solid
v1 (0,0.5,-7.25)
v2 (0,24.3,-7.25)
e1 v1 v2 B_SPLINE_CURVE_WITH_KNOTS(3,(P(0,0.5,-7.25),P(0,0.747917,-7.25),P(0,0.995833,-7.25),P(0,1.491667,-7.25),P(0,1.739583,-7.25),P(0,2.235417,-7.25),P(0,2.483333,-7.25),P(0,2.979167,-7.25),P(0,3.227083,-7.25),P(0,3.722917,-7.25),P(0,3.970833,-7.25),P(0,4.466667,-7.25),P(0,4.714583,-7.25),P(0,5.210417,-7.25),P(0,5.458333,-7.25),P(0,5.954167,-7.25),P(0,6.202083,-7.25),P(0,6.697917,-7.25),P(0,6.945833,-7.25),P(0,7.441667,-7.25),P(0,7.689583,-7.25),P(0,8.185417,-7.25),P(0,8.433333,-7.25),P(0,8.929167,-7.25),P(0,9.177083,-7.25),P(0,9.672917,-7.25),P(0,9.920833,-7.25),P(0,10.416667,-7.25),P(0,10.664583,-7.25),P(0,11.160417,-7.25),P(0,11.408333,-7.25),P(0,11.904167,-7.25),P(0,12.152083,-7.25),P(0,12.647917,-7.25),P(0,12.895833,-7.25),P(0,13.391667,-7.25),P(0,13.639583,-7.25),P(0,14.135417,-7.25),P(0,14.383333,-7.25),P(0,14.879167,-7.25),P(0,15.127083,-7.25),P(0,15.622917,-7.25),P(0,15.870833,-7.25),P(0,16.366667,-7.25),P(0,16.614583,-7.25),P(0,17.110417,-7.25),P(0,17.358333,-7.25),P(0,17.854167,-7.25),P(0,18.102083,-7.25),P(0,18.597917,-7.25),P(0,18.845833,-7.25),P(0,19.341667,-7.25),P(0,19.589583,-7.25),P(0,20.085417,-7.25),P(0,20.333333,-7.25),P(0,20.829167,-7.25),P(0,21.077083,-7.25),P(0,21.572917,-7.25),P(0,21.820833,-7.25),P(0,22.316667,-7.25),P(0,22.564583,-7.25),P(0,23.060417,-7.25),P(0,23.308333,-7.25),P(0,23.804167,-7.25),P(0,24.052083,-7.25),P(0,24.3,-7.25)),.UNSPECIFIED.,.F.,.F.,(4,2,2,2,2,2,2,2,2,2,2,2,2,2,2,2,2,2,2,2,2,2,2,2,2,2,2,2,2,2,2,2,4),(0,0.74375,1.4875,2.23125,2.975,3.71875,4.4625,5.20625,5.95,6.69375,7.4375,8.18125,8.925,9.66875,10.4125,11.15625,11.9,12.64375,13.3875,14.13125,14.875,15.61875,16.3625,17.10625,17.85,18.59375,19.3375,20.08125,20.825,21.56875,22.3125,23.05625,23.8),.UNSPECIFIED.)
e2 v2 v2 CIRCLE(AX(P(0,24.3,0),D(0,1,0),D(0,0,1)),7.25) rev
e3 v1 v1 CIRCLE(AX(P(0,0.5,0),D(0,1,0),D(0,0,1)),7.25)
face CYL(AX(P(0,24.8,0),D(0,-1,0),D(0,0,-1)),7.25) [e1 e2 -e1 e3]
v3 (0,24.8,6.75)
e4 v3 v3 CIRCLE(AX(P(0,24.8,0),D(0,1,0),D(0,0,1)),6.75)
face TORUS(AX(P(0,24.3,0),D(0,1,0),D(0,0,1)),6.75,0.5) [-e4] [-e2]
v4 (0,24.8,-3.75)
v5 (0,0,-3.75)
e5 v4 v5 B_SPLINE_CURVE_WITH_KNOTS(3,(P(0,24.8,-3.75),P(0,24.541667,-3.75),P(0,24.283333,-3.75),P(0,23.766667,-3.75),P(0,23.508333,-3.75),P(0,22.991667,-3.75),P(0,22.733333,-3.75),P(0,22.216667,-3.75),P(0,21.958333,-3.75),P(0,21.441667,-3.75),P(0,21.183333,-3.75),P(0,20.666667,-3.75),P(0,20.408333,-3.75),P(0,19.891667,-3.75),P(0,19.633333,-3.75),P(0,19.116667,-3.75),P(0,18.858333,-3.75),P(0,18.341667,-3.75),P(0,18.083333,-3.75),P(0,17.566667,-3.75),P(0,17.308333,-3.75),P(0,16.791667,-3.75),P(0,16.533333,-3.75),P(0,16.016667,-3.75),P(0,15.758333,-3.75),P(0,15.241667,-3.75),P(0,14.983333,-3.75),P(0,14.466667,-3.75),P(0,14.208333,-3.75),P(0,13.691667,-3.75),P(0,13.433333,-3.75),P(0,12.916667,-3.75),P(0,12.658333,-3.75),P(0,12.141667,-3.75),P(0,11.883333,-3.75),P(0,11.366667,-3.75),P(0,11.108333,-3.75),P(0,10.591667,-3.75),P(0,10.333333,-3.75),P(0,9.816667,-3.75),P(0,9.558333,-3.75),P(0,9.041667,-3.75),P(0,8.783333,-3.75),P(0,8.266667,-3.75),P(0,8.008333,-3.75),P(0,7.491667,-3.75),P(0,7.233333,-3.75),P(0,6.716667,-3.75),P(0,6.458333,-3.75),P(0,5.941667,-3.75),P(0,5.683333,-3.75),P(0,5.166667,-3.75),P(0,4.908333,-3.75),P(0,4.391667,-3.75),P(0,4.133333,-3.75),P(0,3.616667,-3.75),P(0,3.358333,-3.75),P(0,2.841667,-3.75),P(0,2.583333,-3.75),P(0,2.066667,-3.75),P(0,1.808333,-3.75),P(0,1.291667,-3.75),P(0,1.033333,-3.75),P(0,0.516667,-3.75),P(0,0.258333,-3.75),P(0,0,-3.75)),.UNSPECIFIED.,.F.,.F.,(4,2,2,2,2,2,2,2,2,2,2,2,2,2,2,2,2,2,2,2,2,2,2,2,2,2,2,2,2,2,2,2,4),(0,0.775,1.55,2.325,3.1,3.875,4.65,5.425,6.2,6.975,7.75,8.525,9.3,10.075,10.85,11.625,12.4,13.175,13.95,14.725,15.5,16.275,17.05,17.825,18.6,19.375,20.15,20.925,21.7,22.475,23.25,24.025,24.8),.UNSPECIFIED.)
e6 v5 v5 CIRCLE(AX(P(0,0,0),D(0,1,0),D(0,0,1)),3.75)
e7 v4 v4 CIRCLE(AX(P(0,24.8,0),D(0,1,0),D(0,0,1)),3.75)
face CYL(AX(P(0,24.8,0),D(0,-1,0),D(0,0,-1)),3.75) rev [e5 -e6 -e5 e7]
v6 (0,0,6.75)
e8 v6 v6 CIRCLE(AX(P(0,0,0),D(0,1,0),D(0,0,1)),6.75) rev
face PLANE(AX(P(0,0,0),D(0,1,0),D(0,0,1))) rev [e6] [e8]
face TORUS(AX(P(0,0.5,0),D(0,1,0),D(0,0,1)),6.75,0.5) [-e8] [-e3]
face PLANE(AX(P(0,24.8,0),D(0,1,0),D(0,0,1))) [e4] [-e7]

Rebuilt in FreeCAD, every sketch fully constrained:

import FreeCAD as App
import Part
import Sketcher
from FreeCAD import Vector
Q = App.Units.Quantity


def edges_at(feature, points):
    """Names of the edges that pass closest to the given points."""
    edges = feature.Shape.Edges
    near = lambda p: min(range(len(edges)), key=lambda i: edges[i].distToShape(Part.Vertex(*p))[0])
    return sorted({f"Edge{near(p) + 1}" for p in points})

doc = App.newDocument("Part")
body = doc.addObject("PartDesign::Body", "Body")

sketch1 = body.newObject("Sketcher::SketchObject", "Sketch")
sketch1.AttachmentSupport = (doc.getObject("XZ_Plane"), [""])
sketch1.MapMode = "FlatFace"
sketch1.addGeometry(Part.Circle(Vector(0, 0, 0), Vector(0, 0, 1), 7.25), False)
sketch1.addGeometry(Part.Circle(Vector(0, 0, 0), Vector(0, 0, 1), 3.75), False)
sketch1.addConstraint(Sketcher.Constraint("Coincident", 0, 3, -1, 1))
sketch1.addConstraint(Sketcher.Constraint("Coincident", 1, 3, -1, 1))
sketch1.addConstraint(Sketcher.Constraint("Diameter", 0, Q("14.5 mm")))
sketch1.addConstraint(Sketcher.Constraint("Diameter", 1, Q("7.5 mm")))
pad1 = body.newObject("PartDesign::Pad", "Pad")
pad1.Profile = sketch1
pad1.Length = 24.8
pad1.Reversed = True
doc.recompute()

fillet = body.newObject("PartDesign::Fillet", "Fillet")
fillet.Base = (pad1, edges_at(pad1, [(0, 0, 7.25), (0, 24.8, 7.25)]))
fillet.Radius = 0.5

doc.recompute()
